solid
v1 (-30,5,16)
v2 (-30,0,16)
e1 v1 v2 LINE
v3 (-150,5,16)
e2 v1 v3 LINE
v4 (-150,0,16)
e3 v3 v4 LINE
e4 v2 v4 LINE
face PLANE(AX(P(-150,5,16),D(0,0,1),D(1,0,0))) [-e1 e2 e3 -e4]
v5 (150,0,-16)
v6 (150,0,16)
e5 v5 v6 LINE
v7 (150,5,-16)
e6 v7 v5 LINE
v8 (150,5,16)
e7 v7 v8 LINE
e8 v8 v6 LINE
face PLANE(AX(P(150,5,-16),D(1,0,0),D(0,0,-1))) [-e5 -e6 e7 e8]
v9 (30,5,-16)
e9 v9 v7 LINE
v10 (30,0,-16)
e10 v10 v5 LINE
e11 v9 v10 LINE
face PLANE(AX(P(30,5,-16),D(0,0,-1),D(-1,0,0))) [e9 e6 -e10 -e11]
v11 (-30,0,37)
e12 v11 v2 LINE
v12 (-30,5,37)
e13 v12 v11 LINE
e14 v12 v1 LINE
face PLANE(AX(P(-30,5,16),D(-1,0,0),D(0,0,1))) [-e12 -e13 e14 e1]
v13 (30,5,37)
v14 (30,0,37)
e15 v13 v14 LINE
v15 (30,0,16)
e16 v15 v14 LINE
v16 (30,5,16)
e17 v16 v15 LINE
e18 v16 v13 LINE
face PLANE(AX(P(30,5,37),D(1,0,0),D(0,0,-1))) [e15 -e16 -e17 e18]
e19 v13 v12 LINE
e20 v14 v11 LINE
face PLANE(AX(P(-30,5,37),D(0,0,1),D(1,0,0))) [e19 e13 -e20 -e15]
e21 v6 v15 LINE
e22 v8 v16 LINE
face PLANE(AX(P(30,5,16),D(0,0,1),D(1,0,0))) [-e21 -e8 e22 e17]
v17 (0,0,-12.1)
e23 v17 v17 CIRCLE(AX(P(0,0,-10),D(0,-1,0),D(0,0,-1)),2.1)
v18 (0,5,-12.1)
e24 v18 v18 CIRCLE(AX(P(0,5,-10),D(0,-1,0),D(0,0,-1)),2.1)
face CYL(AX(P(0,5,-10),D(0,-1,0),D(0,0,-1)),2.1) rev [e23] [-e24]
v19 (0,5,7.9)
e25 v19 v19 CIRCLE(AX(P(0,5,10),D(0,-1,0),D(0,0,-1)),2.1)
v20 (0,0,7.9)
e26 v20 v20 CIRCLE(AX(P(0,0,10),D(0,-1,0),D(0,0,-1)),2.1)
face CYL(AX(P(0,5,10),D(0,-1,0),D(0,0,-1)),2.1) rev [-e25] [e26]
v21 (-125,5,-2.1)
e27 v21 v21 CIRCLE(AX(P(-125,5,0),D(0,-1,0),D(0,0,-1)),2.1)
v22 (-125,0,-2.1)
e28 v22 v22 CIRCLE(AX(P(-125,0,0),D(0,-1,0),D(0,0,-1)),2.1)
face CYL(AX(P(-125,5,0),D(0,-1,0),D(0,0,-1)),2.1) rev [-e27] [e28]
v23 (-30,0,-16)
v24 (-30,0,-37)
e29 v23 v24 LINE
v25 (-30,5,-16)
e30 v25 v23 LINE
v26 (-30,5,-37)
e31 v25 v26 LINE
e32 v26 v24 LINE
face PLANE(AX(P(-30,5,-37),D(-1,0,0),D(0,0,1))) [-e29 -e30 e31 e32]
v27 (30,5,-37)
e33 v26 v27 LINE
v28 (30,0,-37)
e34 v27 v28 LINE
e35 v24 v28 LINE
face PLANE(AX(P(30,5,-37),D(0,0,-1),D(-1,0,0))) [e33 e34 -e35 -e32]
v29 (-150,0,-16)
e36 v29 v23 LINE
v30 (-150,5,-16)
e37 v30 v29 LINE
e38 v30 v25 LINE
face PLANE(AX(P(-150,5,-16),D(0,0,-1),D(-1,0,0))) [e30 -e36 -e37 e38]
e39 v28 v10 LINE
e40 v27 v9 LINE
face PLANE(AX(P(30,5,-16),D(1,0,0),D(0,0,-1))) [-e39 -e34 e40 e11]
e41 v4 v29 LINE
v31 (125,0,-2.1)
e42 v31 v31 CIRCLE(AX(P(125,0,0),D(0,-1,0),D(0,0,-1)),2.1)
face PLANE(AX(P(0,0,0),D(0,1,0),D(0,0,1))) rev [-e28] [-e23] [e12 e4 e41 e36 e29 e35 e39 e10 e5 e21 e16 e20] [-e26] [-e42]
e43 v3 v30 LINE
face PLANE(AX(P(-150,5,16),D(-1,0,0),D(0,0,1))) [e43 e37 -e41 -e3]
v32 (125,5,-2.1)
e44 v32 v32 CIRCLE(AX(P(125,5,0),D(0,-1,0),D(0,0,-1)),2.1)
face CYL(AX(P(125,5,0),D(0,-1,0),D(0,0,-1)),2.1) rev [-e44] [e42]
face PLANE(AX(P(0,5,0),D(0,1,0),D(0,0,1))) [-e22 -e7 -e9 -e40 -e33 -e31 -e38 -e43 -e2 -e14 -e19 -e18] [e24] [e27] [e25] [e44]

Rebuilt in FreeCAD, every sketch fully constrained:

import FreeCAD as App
import Part
import Sketcher

V = App.Vector
Q = App.Units.Quantity


def edges_at(feature, points):
    """Names of the edges that pass closest to the given points."""
    edges = feature.Shape.Edges
    near = lambda p: min(range(len(edges)), key=lambda i: edges[i].distToShape(Part.Vertex(*p))[0])
    return sorted({f"Edge{near(p) + 1}" for p in points})

doc = App.newDocument("Part")
body = doc.addObject("PartDesign::Body", "Body")

# Sketch on XZ plane
sketch1 = body.newObject("Sketcher::SketchObject", "Sketch")
sketch1.AttachmentSupport = (doc.getObject("XZ_Plane"), [""])
sketch1.MapMode = "FlatFace"
sketch1.addGeometry([
    Part.LineSegment(V(-180, -103, 0), V(-180, -180, 0)),  # 0
    Part.LineSegment(V(-180, -180, 0), V(-210, -180, 0)),  # 1
    Part.LineSegment(V(-210, -180, 0), V(-210, 180, 0)),  # 2
    Part.LineSegment(V(-210, 180, 0), V(-180, 180, 0)),  # 3
    Part.LineSegment(V(-180, 180, 0), V(-180, 103, 0)),  # 4
    Part.LineSegment(V(-180, 103, 0), V(-80, 103, 0)),  # 5
    Part.LineSegment(V(-80, 103, 0), V(-80, 180, 0)),  # 6
    Part.LineSegment(V(-80, 180, 0), V(80, 180, 0)),  # 7
    Part.LineSegment(V(80, 180, 0), V(80, 103, 0)),  # 8
    Part.LineSegment(V(80, 103, 0), V(180, 103, 0)),  # 9
    Part.LineSegment(V(180, 103, 0), V(180, 180, 0)),  # 10
    Part.LineSegment(V(180, 180, 0), V(210, 180, 0)),  # 11
    Part.LineSegment(V(210, 180, 0), V(210, -180, 0)),  # 12
    Part.LineSegment(V(210, -180, 0), V(180, -180, 0)),  # 13
    Part.LineSegment(V(180, -180, 0), V(180, -103, 0)),  # 14
    Part.LineSegment(V(180, -103, 0), V(80, -103, 0)),  # 15
    Part.LineSegment(V(80, -103, 0), V(80, -180, 0)),  # 16
    Part.LineSegment(V(80, -180, 0), V(-80, -180, 0)),  # 17
    Part.LineSegment(V(-80, -180, 0), V(-80, -103, 0)),  # 18
    Part.LineSegment(V(-80, -103, 0), V(-180, -103, 0)),  # 19
], False)
sketch1.addConstraint([
    Sketcher.Constraint("Coincident", 0, 2, 1, 1),
    Sketcher.Constraint("Coincident", 1, 2, 2, 1),
    Sketcher.Constraint("Coincident", 2, 2, 3, 1),
    Sketcher.Constraint("Coincident", 3, 2, 4, 1),
    Sketcher.Constraint("Coincident", 4, 2, 5, 1),
    Sketcher.Constraint("Coincident", 5, 2, 6, 1),
    Sketcher.Constraint("Coincident", 6, 2, 7, 1),
    Sketcher.Constraint("Coincident", 7, 2, 8, 1),
    Sketcher.Constraint("Coincident", 8, 2, 9, 1),
    Sketcher.Constraint("Coincident", 9, 2, 10, 1),
    Sketcher.Constraint("Coincident", 10, 2, 11, 1),
    Sketcher.Constraint("Coincident", 11, 2, 12, 1),
    Sketcher.Constraint("Coincident", 12, 2, 13, 1),
    Sketcher.Constraint("Coincident", 13, 2, 14, 1),
    Sketcher.Constraint("Coincident", 14, 2, 15, 1),
    Sketcher.Constraint("Coincident", 15, 2, 16, 1),
    Sketcher.Constraint("Coincident", 16, 2, 17, 1),
    Sketcher.Constraint("Coincident", 17, 2, 18, 1),
    Sketcher.Constraint("Coincident", 18, 2, 19, 1),
    Sketcher.Constraint("Coincident", 19, 2, 0, 1),
    Sketcher.Constraint("Vertical", 0),
    Sketcher.Constraint("Horizontal", 1),
    Sketcher.Constraint("Vertical", 2),
    Sketcher.Constraint("Horizontal", 3),
    Sketcher.Constraint("Vertical", 4),
    Sketcher.Constraint("Horizontal", 5),
    Sketcher.Constraint("Vertical", 6),
    Sketcher.Constraint("Horizontal", 7),
    Sketcher.Constraint("Vertical", 8),
    Sketcher.Constraint("Horizontal", 9),
    Sketcher.Constraint("Vertical", 10),
    Sketcher.Constraint("Horizontal", 11),
    Sketcher.Constraint("Vertical", 12),
    Sketcher.Constraint("Horizontal", 13),
    Sketcher.Constraint("Vertical", 14),
    Sketcher.Constraint("Horizontal", 15),
    Sketcher.Constraint("Vertical", 16),
    Sketcher.Constraint("Horizontal", 17),
    Sketcher.Constraint("Vertical", 18),
    Sketcher.Constraint("Horizontal", 19),
    Sketcher.Constraint("Symmetric", 0, 2, 10, 2, -1, 1),
    Sketcher.Constraint("Symmetric", 2, 2, 12, 2, -1, 1),
    Sketcher.Constraint("Symmetric", 4, 2, 14, 2, -1, 1),
    Sketcher.Constraint("Symmetric", 6, 2, 16, 2, -1, 1),
    Sketcher.Constraint("Symmetric", 8, 2, 18, 2, -1, 1),
    Sketcher.Constraint("Symmetric", 5, 2, 8, 2, -2),
    Sketcher.Constraint("Symmetric", 3, 2, 10, 2, -2),
    Sketcher.Constraint("Horizontal", 3, 2, 6, 2),
    Sketcher.Constraint("DistanceX", 1, 2, 1, 1, Q("30 mm")),
    Sketcher.Constraint("DistanceX", 5, 1, 5, 2, Q("100 mm")),
    Sketcher.Constraint("DistanceX", 7, 1, 7, 2, Q("160 mm")),
    Sketcher.Constraint("DistanceY", 0, 2, 0, 1, Q("77 mm")),
    Sketcher.Constraint("DistanceY", 2, 1, 2, 2, Q("360 mm")),
])
pad1 = body.newObject("PartDesign::Pad", "Pad")
pad1.Profile = sketch1
pad1.Length = 5
pad1.Reversed = True

# Sketch on XZ plane
sketch2 = body.newObject("Sketcher::SketchObject", "Sketch001")
sketch2.AttachmentSupport = (doc.getObject("XZ_Plane"), [""])
sketch2.MapMode = "FlatFace"
sketch2.AttachmentOffset = App.Placement(V(0, 0, -5), App.Rotation())
sketch2.addGeometry([
    Part.Circle(V(115, 88.5, 0), V(0, 0, 1), 2.1),  # 0
    Part.Circle(V(145, 88.5, 0), V(0, 0, 1), 2.1),  # 1
    Part.Circle(V(130, 95.5, 0), V(0, 0, 1), 2.1),  # 2
    Part.Circle(V(130, -95.5, 0), V(0, 0, 1), 2.1),  # 3
    Part.Circle(V(145, -88.5, 0), V(0, 0, 1), 2.1),  # 4
    Part.Circle(V(115, -88.5, 0), V(0, 0, 1), 2.1),  # 5
    Part.Circle(V(-115, -88.5, 0), V(0, 0, 1), 2.1),  # 6
    Part.Circle(V(-145, -88.5, 0), V(0, 0, 1), 2.1),  # 7
    Part.Circle(V(-130, -95.5, 0), V(0, 0, 1), 2.1),  # 8
    Part.Circle(V(-130, 95.5, 0), V(0, 0, 1), 2.1),  # 9
    Part.Circle(V(-145, 88.5, 0), V(0, 0, 1), 2.1),  # 10
    Part.Circle(V(-115, 88.5, 0), V(0, 0, 1), 2.1),  # 11
], False)
sketch2.addConstraint([
    Sketcher.Constraint("Equal", 0, 1),
    Sketcher.Constraint("Equal", 1, 2),
    Sketcher.Constraint("Equal", 2, 3),
    Sketcher.Constraint("Equal", 3, 4),
    Sketcher.Constraint("Equal", 4, 5),
    Sketcher.Constraint("Equal", 5, 6),
    Sketcher.Constraint("Equal", 6, 7),
    Sketcher.Constraint("Equal", 7, 8),
    Sketcher.Constraint("Equal", 8, 9),
    Sketcher.Constraint("Equal", 9, 10),
    Sketcher.Constraint("Equal", 10, 11),
    Sketcher.Constraint("Symmetric", 0, 3, 6, 3, -1, 1),
    Sketcher.Constraint("Symmetric", 1, 3, 7, 3, -1, 1),
    Sketcher.Constraint("Symmetric", 2, 3, 8, 3, -1, 1),
    Sketcher.Constraint("Symmetric", 3, 3, 9, 3, -1, 1),
    Sketcher.Constraint("Symmetric", 4, 3, 10, 3, -1, 1),
    Sketcher.Constraint("Symmetric", 5, 3, 11, 3, -1, 1),
    Sketcher.Constraint("Symmetric", 5, 3, 6, 3, -2),
    Sketcher.Constraint("Symmetric", 4, 3, 7, 3, -2),
    Sketcher.Constraint("Symmetric", 3, 3, 8, 3, -2),
    Sketcher.Constraint("Horizontal", 0, 3, 1, 3),
    Sketcher.Constraint("Diameter", 0, Q("4.2 mm")),
    Sketcher.Constraint("DistanceX", -1, 1, 0, 3, Q("115 mm")),
    Sketcher.Constraint("DistanceX", -1, 1, 1, 3, Q("145 mm")),
    Sketcher.Constraint("DistanceX", -1, 1, 2, 3, Q("130 mm")),
    Sketcher.Constraint("DistanceY", 0, 3, 2, 3, Q("7 mm")),
    Sketcher.Constraint("DistanceY", 3, 3, 0, 3, Q("184 mm")),
])
pocket1 = body.newObject("PartDesign::Pocket", "Pocket")
pocket1.Profile = sketch2
pocket1.Type = "ThroughAll"
pocket1.Reversed = True
doc.recompute()

fillet = body.newObject("PartDesign::Fillet", "Fillet")
fillet.Base = (pocket1, edges_at(pocket1, [
    (180, 2.5, 180),
    (80, 2.5, 180),
    (-80, 2.5, 180),
    (-180, 2.5, 180),
    (-180, 2.5, -180),
    (-80, 2.5, -180),
    (80, 2.5, -180),
    (180, 2.5, -180),
]))
fillet.Radius = 5

# Sketch on XZ plane
sketch3 = body.newObject("Sketcher::SketchObject", "Sketch002")
sketch3.AttachmentSupport = (doc.getObject("XZ_Plane"), [""])
sketch3.MapMode = "FlatFace"
sketch3.addGeometry([
    Part.Circle(V(84.75, 31.75, 0), V(0, 0, 1), 2.5),  # 0
    Part.Circle(V(84.75, -31.75, 0), V(0, 0, 1), 2.5),  # 1
    Part.Circle(V(171.25, 31.75, 0), V(0, 0, 1), 2.5),  # 2
    Part.Circle(V(171.25, -31.75, 0), V(0, 0, 1), 2.5),  # 3
    Part.Circle(V(-171.25, -31.75, 0), V(0, 0, 1), 2.5),  # 4
    Part.Circle(V(-171.25, 31.75, 0), V(0, 0, 1), 2.5),  # 5
    Part.Circle(V(-84.75, -31.75, 0), V(0, 0, 1), 2.5),  # 6
    Part.Circle(V(-84.75, 31.75, 0), V(0, 0, 1), 2.5),  # 7
], False)
sketch3.addConstraint([
    Sketcher.Constraint("Equal", 0, 1),
    Sketcher.Constraint("Equal", 1, 2),
    Sketcher.Constraint("Equal", 2, 3),
    Sketcher.Constraint("Equal", 3, 4),
    Sketcher.Constraint("Equal", 4, 5),
    Sketcher.Constraint("Equal", 5, 6),
    Sketcher.Constraint("Equal", 6, 7),
    Sketcher.Constraint("Symmetric", 2, 3, 4, 3, -1, 1),
    Sketcher.Constraint("Symmetric", 3, 3, 5, 3, -1, 1),
    Sketcher.Constraint("Symmetric", 0, 3, 6, 3, -1, 1),
    Sketcher.Constraint("Symmetric", 1, 3, 7, 3, -1, 1),
    Sketcher.Constraint("Symmetric", 3, 3, 4, 3, -2),
    Sketcher.Constraint("Symmetric", 1, 3, 6, 3, -2),
    Sketcher.Constraint("Horizontal", 0, 3, 2, 3),
    Sketcher.Constraint("Diameter", 0, Q("5 mm")),
    Sketcher.Constraint("DistanceX", 4, 3, 1, 3, Q("256 mm")),
    Sketcher.Constraint("DistanceY", 1, 3, 0, 3, Q("63.5 mm")),
    Sketcher.Constraint("DistanceX", 0, 3, 2, 3, Q("86.5 mm")),
])
pocket2 = body.newObject("PartDesign::Pocket", "Pocket001")
pocket2.Profile = sketch3
pocket2.Type = "ThroughAll"

# Sketch on XZ plane
sketch4 = body.newObject("Sketcher::SketchObject", "Sketch003")
sketch4.AttachmentSupport = (doc.getObject("XZ_Plane"), [""])
sketch4.MapMode = "FlatFace"
sketch4.addGeometry([
    Part.Circle(V(-125, 0, 0), V(0, 0, 1), 2.1),
    Part.Circle(V(125, 0, 0), V(0, 0, 1), 2.1),
    Part.Circle(V(0, 10, 0), V(0, 0, 1), 2.1),
    Part.Circle(V(0, -10, 0), V(0, 0, 1), 2.1),
], False)
sketch4.addConstraint([
    Sketcher.Constraint("Equal", 0, 1),
    Sketcher.Constraint("Equal", 1, 2),
    Sketcher.Constraint("Equal", 2, 3),
    Sketcher.Constraint("Symmetric", 0, 3, 1, 3, -1, 1),
    Sketcher.Constraint("Symmetric", 2, 3, 3, 3, -1, 1),
    Sketcher.Constraint("PointOnObject", 0, 3, -1),
    Sketcher.Constraint("PointOnObject", 2, 3, -2),
    Sketcher.Constraint("Diameter", 0, Q("4.2 mm")),
    Sketcher.Constraint("DistanceX", 0, 3, -1, 1, Q("125 mm")),
    Sketcher.Constraint("DistanceY", -1, 1, 2, 3, Q("10 mm")),
])
pocket3 = body.newObject("PartDesign::Pocket", "Pocket002")
pocket3.Profile = sketch4
pocket3.Type = "ThroughAll"

# Sketch on XZ plane
sketch5 = body.newObject("Sketcher::SketchObject", "Sketch004")
sketch5.AttachmentSupport = (doc.getObject("XZ_Plane"), [""])
sketch5.MapMode = "FlatFace"
sketch5.addGeometry([
    Part.LineSegment(V(-266.32, 236.32, 0), V(-266.32, -236.32, 0)),  # 0
    Part.LineSegment(V(-266.32, -236.32, 0), V(266.32, -236.32, 0)),  # 1
    Part.LineSegment(V(266.32, -236.32, 0), V(266.32, 236.32, 0)),  # 2
    Part.LineSegment(V(266.32, 236.32, 0), V(-266.32, 236.32, 0)),  # 3
    Part.LineSegment(V(-150, -16, 0), V(-150, 16, 0)),  # 4
    Part.LineSegment(V(-150, 16, 0), V(-30, 16, 0)),  # 5
    Part.LineSegment(V(-30, 16, 0), V(-30, 37, 0)),  # 6
    Part.LineSegment(V(-30, 37, 0), V(30, 37, 0)),  # 7
    Part.LineSegment(V(30, 37, 0), V(30, 16, 0)),  # 8
    Part.LineSegment(V(30, 16, 0), V(150, 16, 0)),  # 9
    Part.LineSegment(V(150, 16, 0), V(150, -16, 0)),  # 10
    Part.LineSegment(V(150, -16, 0), V(30, -16, 0)),  # 11
    Part.LineSegment(V(30, -16, 0), V(30, -37, 0)),  # 12
    Part.LineSegment(V(30, -37, 0), V(-30, -37, 0)),  # 13
    Part.LineSegment(V(-30, -37, 0), V(-30, -16, 0)),  # 14
    Part.LineSegment(V(-30, -16, 0), V(-150, -16, 0)),  # 15
], False)
sketch5.addConstraint([
    Sketcher.Constraint("Coincident", 0, 2, 1, 1),
    Sketcher.Constraint("Coincident", 1, 2, 2, 1),
    Sketcher.Constraint("Coincident", 2, 2, 3, 1),
    Sketcher.Constraint("Coincident", 3, 2, 0, 1),
    Sketcher.Constraint("Coincident", 4, 2, 5, 1),
    Sketcher.Constraint("Coincident", 5, 2, 6, 1),
    Sketcher.Constraint("Coincident", 6, 2, 7, 1),
    Sketcher.Constraint("Coincident", 7, 2, 8, 1),
    Sketcher.Constraint("Coincident", 8, 2, 9, 1),
    Sketcher.Constraint("Coincident", 9, 2, 10, 1),
    Sketcher.Constraint("Coincident", 10, 2, 11, 1),
    Sketcher.Constraint("Coincident", 11, 2, 12, 1),
    Sketcher.Constraint("Coincident", 12, 2, 13, 1),
    Sketcher.Constraint("Coincident", 13, 2, 14, 1),
    Sketcher.Constraint("Coincident", 14, 2, 15, 1),
    Sketcher.Constraint("Coincident", 15, 2, 4, 1),
    Sketcher.Constraint("Vertical", 0),
    Sketcher.Constraint("Horizontal", 1),
    Sketcher.Constraint("Vertical", 2),
    Sketcher.Constraint("Horizontal", 3),
    Sketcher.Constraint("Vertical", 4),
    Sketcher.Constraint("Horizontal", 5),
    Sketcher.Constraint("Vertical", 6),
    Sketcher.Constraint("Horizontal", 7),
    Sketcher.Constraint("Vertical", 8),
    Sketcher.Constraint("Horizontal", 9),
    Sketcher.Constraint("Vertical", 10),
    Sketcher.Constraint("Horizontal", 11),
    Sketcher.Constraint("Vertical", 12),
    Sketcher.Constraint("Horizontal", 13),
    Sketcher.Constraint("Vertical", 14),
    Sketcher.Constraint("Horizontal", 15),
    Sketcher.Constraint("Symmetric", 0, 2, 2, 2, -1, 1),
    Sketcher.Constraint("Symmetric", 4, 2, 10, 2, -1, 1),
    Sketcher.Constraint("Symmetric", 6, 2, 12, 2, -1, 1),
    Sketcher.Constraint("Symmetric", 8, 2, 14, 2, -1, 1),
    Sketcher.Constraint("Symmetric", 5, 2, 8, 2, -2),
    Sketcher.Constraint("DistanceX", 5, 1, 5, 2, Q("120 mm")),
    Sketcher.Constraint("DistanceX", 7, 1, 7, 2, Q("60 mm")),
    Sketcher.Constraint("DistanceY", 4, 1, 4, 2, Q("32 mm")),
    Sketcher.Constraint("DistanceY", 6, 1, 6, 2, Q("21 mm")),
    Sketcher.Constraint("DistanceX", 1, 1, 1, 2, Q("532.64 mm")),
    Sketcher.Constraint("DistanceY", 0, 2, 0, 1, Q("472.64 mm")),
])
pocket4 = body.newObject("PartDesign::Pocket", "Pocket003")
pocket4.Profile = sketch5
pocket4.Type = "ThroughAll"

doc.recompute()
